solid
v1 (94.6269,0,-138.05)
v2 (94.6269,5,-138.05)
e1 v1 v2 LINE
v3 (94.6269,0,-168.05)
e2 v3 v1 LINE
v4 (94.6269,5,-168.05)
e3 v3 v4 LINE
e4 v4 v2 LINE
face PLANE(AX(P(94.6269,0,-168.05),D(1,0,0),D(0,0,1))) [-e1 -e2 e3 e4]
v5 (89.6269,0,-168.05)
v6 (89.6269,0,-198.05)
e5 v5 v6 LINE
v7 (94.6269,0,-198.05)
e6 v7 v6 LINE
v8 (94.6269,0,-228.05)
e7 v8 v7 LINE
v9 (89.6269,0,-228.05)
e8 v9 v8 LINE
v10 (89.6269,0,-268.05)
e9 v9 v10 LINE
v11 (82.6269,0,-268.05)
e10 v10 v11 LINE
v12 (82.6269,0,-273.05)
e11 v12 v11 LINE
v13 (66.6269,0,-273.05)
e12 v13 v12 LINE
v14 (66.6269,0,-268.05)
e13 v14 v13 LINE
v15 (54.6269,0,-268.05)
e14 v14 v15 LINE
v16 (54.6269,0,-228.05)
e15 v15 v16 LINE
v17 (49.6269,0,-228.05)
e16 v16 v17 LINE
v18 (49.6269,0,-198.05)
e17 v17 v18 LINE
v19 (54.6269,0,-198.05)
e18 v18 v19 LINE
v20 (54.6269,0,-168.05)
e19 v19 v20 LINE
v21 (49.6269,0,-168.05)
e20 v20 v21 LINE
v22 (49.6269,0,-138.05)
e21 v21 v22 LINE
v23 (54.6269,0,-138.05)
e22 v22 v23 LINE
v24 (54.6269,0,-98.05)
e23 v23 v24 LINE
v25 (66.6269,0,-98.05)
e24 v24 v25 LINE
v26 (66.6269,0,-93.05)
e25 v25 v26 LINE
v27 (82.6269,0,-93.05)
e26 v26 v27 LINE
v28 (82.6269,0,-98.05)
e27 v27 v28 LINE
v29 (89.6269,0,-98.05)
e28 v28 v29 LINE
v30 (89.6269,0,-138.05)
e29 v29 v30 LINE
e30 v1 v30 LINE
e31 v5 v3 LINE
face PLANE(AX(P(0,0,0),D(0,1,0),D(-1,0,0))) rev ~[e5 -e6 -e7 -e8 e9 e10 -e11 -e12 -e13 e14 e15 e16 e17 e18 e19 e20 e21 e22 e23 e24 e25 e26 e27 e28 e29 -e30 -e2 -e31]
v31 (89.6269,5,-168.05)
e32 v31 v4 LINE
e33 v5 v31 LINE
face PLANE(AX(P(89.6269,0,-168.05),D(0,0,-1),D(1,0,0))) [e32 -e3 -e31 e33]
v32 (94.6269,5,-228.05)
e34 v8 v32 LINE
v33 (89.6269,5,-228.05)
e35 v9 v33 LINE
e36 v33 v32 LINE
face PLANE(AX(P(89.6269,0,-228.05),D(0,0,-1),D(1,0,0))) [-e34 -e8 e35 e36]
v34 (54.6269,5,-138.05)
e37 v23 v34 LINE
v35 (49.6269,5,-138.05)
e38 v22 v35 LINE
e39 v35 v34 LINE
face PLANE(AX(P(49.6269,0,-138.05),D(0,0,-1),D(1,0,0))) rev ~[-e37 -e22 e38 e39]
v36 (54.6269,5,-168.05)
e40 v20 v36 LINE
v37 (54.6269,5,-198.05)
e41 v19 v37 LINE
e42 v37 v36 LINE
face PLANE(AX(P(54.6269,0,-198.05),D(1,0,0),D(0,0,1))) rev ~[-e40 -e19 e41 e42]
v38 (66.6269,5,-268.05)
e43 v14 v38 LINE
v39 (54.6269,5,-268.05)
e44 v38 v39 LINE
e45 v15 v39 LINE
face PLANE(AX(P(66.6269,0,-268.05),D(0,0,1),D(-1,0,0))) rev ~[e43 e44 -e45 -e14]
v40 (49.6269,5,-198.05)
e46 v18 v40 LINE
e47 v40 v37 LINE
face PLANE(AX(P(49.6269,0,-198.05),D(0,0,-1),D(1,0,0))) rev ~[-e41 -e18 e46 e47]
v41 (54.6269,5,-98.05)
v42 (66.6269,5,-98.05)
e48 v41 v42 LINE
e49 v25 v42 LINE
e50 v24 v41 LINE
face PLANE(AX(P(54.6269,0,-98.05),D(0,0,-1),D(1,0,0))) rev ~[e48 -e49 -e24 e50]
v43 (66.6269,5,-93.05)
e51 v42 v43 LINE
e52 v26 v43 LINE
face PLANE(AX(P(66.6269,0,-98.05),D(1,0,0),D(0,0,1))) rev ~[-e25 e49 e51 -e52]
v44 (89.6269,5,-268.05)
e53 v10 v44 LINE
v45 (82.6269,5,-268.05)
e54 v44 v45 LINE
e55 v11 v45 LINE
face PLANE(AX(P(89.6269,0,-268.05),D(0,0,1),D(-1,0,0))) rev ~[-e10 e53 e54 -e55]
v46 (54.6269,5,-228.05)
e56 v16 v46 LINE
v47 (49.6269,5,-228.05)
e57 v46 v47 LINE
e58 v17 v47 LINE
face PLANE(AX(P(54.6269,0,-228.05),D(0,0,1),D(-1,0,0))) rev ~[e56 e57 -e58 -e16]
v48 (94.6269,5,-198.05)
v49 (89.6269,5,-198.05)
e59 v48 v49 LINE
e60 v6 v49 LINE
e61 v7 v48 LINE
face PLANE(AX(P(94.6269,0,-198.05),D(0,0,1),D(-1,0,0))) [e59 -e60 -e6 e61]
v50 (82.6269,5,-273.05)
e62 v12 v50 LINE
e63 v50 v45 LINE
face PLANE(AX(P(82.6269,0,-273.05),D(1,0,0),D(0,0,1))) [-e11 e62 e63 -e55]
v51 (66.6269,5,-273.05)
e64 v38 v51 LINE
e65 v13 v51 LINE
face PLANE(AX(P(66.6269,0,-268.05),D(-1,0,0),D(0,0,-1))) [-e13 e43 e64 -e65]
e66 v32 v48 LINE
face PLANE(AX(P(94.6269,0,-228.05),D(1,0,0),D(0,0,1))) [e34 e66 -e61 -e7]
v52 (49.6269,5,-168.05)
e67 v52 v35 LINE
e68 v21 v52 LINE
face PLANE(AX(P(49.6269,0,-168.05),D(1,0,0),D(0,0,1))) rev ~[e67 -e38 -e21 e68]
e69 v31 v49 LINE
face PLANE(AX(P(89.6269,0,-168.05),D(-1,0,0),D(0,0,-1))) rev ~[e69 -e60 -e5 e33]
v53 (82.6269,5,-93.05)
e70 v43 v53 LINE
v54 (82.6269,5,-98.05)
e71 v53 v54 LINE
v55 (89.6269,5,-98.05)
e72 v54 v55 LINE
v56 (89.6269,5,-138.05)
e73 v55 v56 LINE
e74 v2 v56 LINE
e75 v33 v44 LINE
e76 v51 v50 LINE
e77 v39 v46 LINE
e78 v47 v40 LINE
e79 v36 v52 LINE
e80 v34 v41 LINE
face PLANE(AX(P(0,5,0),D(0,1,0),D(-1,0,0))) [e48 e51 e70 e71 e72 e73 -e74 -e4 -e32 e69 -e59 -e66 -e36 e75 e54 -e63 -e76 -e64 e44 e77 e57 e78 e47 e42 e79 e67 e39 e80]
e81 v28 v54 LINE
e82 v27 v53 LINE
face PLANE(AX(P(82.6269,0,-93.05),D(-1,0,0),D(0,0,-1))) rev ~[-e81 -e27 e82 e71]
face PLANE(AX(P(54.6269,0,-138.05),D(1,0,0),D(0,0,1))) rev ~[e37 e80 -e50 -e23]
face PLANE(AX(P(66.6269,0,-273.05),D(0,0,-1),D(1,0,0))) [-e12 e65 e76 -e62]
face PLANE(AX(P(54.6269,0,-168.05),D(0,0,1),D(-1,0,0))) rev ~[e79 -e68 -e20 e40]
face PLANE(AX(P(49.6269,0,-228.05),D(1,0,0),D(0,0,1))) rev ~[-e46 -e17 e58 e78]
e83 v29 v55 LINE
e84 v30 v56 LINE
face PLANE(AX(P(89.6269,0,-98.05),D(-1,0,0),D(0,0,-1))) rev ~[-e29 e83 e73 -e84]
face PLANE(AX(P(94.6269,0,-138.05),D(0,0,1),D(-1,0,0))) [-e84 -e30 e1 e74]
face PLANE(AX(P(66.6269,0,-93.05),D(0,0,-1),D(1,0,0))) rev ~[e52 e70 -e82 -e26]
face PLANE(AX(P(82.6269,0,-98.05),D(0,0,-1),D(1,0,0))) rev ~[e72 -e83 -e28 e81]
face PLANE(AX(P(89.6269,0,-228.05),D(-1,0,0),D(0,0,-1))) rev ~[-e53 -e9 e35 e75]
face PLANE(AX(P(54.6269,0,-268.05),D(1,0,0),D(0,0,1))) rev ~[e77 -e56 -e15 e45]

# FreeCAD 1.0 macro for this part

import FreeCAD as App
import Part
import Sketcher

V = App.Vector

doc = App.newDocument("Part")
params = doc.addObject("Spreadsheet::Sheet", "Params")
for row, (alias, value) in enumerate([
    ("sketch1_width", "16 mm"),
    ("sketch1_width2", "12 mm"),
    ("sketch1_width3", "5 mm"),
    ("sketch1_height", "40 mm"),
    ("sketch1_height2", "30 mm"),
    ("pad1_length", "5 mm"),
], start=1):
    params.set(f"A{row}", alias)
    params.set(f"B{row}", "=" + value)
    params.setAlias(f"B{row}", alias)

body = doc.addObject("PartDesign::Body", "Body")

sketch1 = body.newObject("Sketcher::SketchObject", "Sketch")
sketch1.AttachmentSupport = (doc.getObject("XZ_Plane"), [""])
sketch1.MapMode = "FlatFace"
sketch1.addGeometry(Part.LineSegment(V(90, -228, 0), V(90, -268, 0)), False)
sketch1.addGeometry(Part.LineSegment(V(90, -268, 0), V(83, -268, 0)), False)
sketch1.addGeometry(Part.LineSegment(V(83, -268, 0), V(83, -273, 0)), False)
sketch1.addGeometry(Part.LineSegment(V(83, -273, 0), V(67, -273, 0)), False)
sketch1.addGeometry(Part.LineSegment(V(67, -273, 0), V(67, -268, 0)), False)
sketch1.addGeometry(Part.LineSegment(V(67, -268, 0), V(55, -268, 0)), False)
sketch1.addGeometry(Part.LineSegment(V(55, -268, 0), V(55, -228, 0)), False)
sketch1.addGeometry(Part.LineSegment(V(55, -228, 0), V(50, -228, 0)), False)
sketch1.addGeometry(Part.LineSegment(V(50, -228, 0), V(50, -198, 0)), False)
sketch1.addGeometry(Part.LineSegment(V(50, -198, 0), V(55, -198, 0)), False)
sketch1.addGeometry(Part.LineSegment(V(55, -198, 0), V(55, -168, 0)), False)
sketch1.addGeometry(Part.LineSegment(V(55, -168, 0), V(50, -168, 0)), False)
sketch1.addGeometry(Part.LineSegment(V(50, -168, 0), V(50, -138, 0)), False)
sketch1.addGeometry(Part.LineSegment(V(50, -138, 0), V(55, -138, 0)), False)
sketch1.addGeometry(Part.LineSegment(V(55, -138, 0), V(55, -98, 0)), False)
sketch1.addGeometry(Part.LineSegment(V(55, -98, 0), V(67, -98, 0)), False)
sketch1.addGeometry(Part.LineSegment(V(67, -98, 0), V(67, -93, 0)), False)
sketch1.addGeometry(Part.LineSegment(V(67, -93, 0), V(83, -93, 0)), False)
sketch1.addGeometry(Part.LineSegment(V(83, -93, 0), V(83, -98, 0)), False)
sketch1.addGeometry(Part.LineSegment(V(83, -98, 0), V(90, -98, 0)), False)
sketch1.addGeometry(Part.LineSegment(V(90, -98, 0), V(90, -138, 0)), False)
sketch1.addGeometry(Part.LineSegment(V(90, -138, 0), V(95, -138, 0)), False)
sketch1.addGeometry(Part.LineSegment(V(95, -138, 0), V(95, -168, 0)), False)
sketch1.addGeometry(Part.LineSegment(V(95, -168, 0), V(90, -168, 0)), False)
sketch1.addGeometry(Part.LineSegment(V(90, -168, 0), V(90, -198, 0)), False)
sketch1.addGeometry(Part.LineSegment(V(90, -198, 0), V(95, -198, 0)), False)
sketch1.addGeometry(Part.LineSegment(V(95, -198, 0), V(95, -228, 0)), False)
sketch1.addGeometry(Part.LineSegment(V(95, -228, 0), V(90, -228, 0)), False)
sketch1.addConstraint(Sketcher.Constraint("Coincident", 0, 2, 1, 1))
sketch1.addConstraint(Sketcher.Constraint("Coincident", 1, 2, 2, 1))
sketch1.addConstraint(Sketcher.Constraint("Coincident", 2, 2, 3, 1))
sketch1.addConstraint(Sketcher.Constraint("Coincident", 3, 2, 4, 1))
sketch1.addConstraint(Sketcher.Constraint("Coincident", 4, 2, 5, 1))
sketch1.addConstraint(Sketcher.Constraint("Coincident", 5, 2, 6, 1))
sketch1.addConstraint(Sketcher.Constraint("Coincident", 6, 2, 7, 1))
sketch1.addConstraint(Sketcher.Constraint("Coincident", 7, 2, 8, 1))
sketch1.addConstraint(Sketcher.Constraint("Coincident", 8, 2, 9, 1))
sketch1.addConstraint(Sketcher.Constraint("Coincident", 9, 2, 10, 1))
sketch1.addConstraint(Sketcher.Constraint("Coincident", 10, 2, 11, 1))
sketch1.addConstraint(Sketcher.Constraint("Coincident", 11, 2, 12, 1))
sketch1.addConstraint(Sketcher.Constraint("Coincident", 12, 2, 13, 1))
sketch1.addConstraint(Sketcher.Constraint("Coincident", 13, 2, 14, 1))
sketch1.addConstraint(Sketcher.Constraint("Coincident", 14, 2, 15, 1))
sketch1.addConstraint(Sketcher.Constraint("Coincident", 15, 2, 16, 1))
sketch1.addConstraint(Sketcher.Constraint("Coincident", 16, 2, 17, 1))
sketch1.addConstraint(Sketcher.Constraint("Coincident", 17, 2, 18, 1))
sketch1.addConstraint(Sketcher.Constraint("Coincident", 18, 2, 19, 1))
sketch1.addConstraint(Sketcher.Constraint("Coincident", 19, 2, 20, 1))
sketch1.addConstraint(Sketcher.Constraint("Coincident", 20, 2, 21, 1))
sketch1.addConstraint(Sketcher.Constraint("Coincident", 21, 2, 22, 1))
sketch1.addConstraint(Sketcher.Constraint("Coincident", 22, 2, 23, 1))
sketch1.addConstraint(Sketcher.Constraint("Coincident", 23, 2, 24, 1))
sketch1.addConstraint(Sketcher.Constraint("Coincident", 24, 2, 25, 1))
sketch1.addConstraint(Sketcher.Constraint("Coincident", 25, 2, 26, 1))
sketch1.addConstraint(Sketcher.Constraint("Coincident", 26, 2, 27, 1))
sketch1.addConstraint(Sketcher.Constraint("Coincident", 27, 2, 0, 1))
sketch1.addConstraint(Sketcher.Constraint("Vertical", 0))
sketch1.addConstraint(Sketcher.Constraint("Horizontal", 1))
sketch1.addConstraint(Sketcher.Constraint("Vertical", 2))
sketch1.addConstraint(Sketcher.Constraint("Horizontal", 3))
sketch1.addConstraint(Sketcher.Constraint("Vertical", 4))
sketch1.addConstraint(Sketcher.Constraint("Horizontal", 5))
sketch1.addConstraint(Sketcher.Constraint("Vertical", 6))
sketch1.addConstraint(Sketcher.Constraint("Horizontal", 7))
sketch1.addConstraint(Sketcher.Constraint("Vertical", 8))
sketch1.addConstraint(Sketcher.Constraint("Horizontal", 9))
sketch1.addConstraint(Sketcher.Constraint("Vertical", 10))
sketch1.addConstraint(Sketcher.Constraint("Horizontal", 11))
sketch1.addConstraint(Sketcher.Constraint("Vertical", 12))
sketch1.addConstraint(Sketcher.Constraint("Horizontal", 13))
sketch1.addConstraint(Sketcher.Constraint("Vertical", 14))
sketch1.addConstraint(Sketcher.Constraint("Horizontal", 15))
sketch1.addConstraint(Sketcher.Constraint("Vertical", 16))
sketch1.addConstraint(Sketcher.Constraint("Horizontal", 17))
sketch1.addConstraint(Sketcher.Constraint("Vertical", 18))
sketch1.addConstraint(Sketcher.Constraint("Horizontal", 19))
sketch1.addConstraint(Sketcher.Constraint("Vertical", 20))
sketch1.addConstraint(Sketcher.Constraint("Horizontal", 21))
sketch1.addConstraint(Sketcher.Constraint("Vertical", 22))
sketch1.addConstraint(Sketcher.Constraint("Horizontal", 23))
sketch1.addConstraint(Sketcher.Constraint("Vertical", 24))
sketch1.addConstraint(Sketcher.Constraint("Horizontal", 25))
sketch1.addConstraint(Sketcher.Constraint("Vertical", 26))
sketch1.addConstraint(Sketcher.Constraint("Horizontal", 27))
sketch1.addConstraint(Sketcher.Constraint("Horizontal", 1, 2, 4, 2))
sketch1.addConstraint(Sketcher.Constraint("Horizontal", 15, 2, 18, 2))
sketch1.addConstraint(Sketcher.Constraint("Horizontal", 13, 2, 20, 2))
sketch1.addConstraint(Sketcher.Constraint("Horizontal", 11, 2, 22, 2))
sketch1.addConstraint(Sketcher.Constraint("Horizontal", 9, 2, 24, 2))
sketch1.addConstraint(Sketcher.Constraint("Horizontal", 7, 2, 26, 2))
sketch1.addConstraint(Sketcher.Constraint("Vertical", 6, 2, 9, 2))
sketch1.addConstraint(Sketcher.Constraint("Vertical", 8, 2, 11, 2))
sketch1.addConstraint(Sketcher.Constraint("Vertical", 10, 2, 13, 2))
sketch1.addConstraint(Sketcher.Constraint("Vertical", 4, 2, 15, 2))
sketch1.addConstraint(Sketcher.Constraint("Vertical", 2, 2, 17, 2))
sketch1.addConstraint(Sketcher.Constraint("Vertical", 0, 2, 19, 2))
sketch1.addConstraint(Sketcher.Constraint("Vertical", 20, 2, 23, 2))
sketch1.addConstraint(Sketcher.Constraint("Vertical", 22, 2, 25, 2))
sketch1.addConstraint(Sketcher.Constraint("Equal", 13, 21))
sketch1.addConstraint(Sketcher.Constraint("Equal", 27, 2))
sketch1.addConstraint(Sketcher.Constraint("Equal", 8, 10))
sketch1.addConstraint(Sketcher.Constraint("Equal", 10, 12))
sketch1.addConstraint(Sketcher.Constraint("Equal", 6, 14))
sketch1.addConstraint(Sketcher.Constraint("Equal", 4, 16))
sketch1.addConstraint(Sketcher.Constraint("DistanceX", 3, 2, 3, 1, 16.0))
sketch1.addConstraint(Sketcher.Constraint("DistanceX", 5, 2, 5, 1, 12.0))
sketch1.addConstraint(Sketcher.Constraint("DistanceX", 7, 2, 7, 1, 5.0))
sketch1.addConstraint(Sketcher.Constraint("DistanceY", 0, 2, 0, 1, 40.0))
sketch1.addConstraint(Sketcher.Constraint("DistanceY", 8, 1, 8, 2, 30.0))
sketch1.addConstraint(Sketcher.Constraint("DistanceX", 5, 2, 0, 2, 35.0))
sketch1.addConstraint(Sketcher.Constraint("DistanceY", 0, 2, -1, 1, 268.05))
sketch1.addConstraint(Sketcher.Constraint("DistanceX", -1, 1, 0, 2, 89.627))
sketch1.setExpression("Constraints[76]", "Params.sketch1_width")
sketch1.setExpression("Constraints[77]", "Params.sketch1_width2")
sketch1.setExpression("Constraints[78]", "Params.sketch1_width3")
sketch1.setExpression("Constraints[79]", "Params.sketch1_height")
sketch1.setExpression("Constraints[80]", "Params.sketch1_height2")
pad1 = body.newObject("PartDesign::Pad", "Pad")
pad1.Profile = sketch1
pad1.setExpression("Length", "Params.pad1_length")
pad1.Reversed = True

doc.recompute()
